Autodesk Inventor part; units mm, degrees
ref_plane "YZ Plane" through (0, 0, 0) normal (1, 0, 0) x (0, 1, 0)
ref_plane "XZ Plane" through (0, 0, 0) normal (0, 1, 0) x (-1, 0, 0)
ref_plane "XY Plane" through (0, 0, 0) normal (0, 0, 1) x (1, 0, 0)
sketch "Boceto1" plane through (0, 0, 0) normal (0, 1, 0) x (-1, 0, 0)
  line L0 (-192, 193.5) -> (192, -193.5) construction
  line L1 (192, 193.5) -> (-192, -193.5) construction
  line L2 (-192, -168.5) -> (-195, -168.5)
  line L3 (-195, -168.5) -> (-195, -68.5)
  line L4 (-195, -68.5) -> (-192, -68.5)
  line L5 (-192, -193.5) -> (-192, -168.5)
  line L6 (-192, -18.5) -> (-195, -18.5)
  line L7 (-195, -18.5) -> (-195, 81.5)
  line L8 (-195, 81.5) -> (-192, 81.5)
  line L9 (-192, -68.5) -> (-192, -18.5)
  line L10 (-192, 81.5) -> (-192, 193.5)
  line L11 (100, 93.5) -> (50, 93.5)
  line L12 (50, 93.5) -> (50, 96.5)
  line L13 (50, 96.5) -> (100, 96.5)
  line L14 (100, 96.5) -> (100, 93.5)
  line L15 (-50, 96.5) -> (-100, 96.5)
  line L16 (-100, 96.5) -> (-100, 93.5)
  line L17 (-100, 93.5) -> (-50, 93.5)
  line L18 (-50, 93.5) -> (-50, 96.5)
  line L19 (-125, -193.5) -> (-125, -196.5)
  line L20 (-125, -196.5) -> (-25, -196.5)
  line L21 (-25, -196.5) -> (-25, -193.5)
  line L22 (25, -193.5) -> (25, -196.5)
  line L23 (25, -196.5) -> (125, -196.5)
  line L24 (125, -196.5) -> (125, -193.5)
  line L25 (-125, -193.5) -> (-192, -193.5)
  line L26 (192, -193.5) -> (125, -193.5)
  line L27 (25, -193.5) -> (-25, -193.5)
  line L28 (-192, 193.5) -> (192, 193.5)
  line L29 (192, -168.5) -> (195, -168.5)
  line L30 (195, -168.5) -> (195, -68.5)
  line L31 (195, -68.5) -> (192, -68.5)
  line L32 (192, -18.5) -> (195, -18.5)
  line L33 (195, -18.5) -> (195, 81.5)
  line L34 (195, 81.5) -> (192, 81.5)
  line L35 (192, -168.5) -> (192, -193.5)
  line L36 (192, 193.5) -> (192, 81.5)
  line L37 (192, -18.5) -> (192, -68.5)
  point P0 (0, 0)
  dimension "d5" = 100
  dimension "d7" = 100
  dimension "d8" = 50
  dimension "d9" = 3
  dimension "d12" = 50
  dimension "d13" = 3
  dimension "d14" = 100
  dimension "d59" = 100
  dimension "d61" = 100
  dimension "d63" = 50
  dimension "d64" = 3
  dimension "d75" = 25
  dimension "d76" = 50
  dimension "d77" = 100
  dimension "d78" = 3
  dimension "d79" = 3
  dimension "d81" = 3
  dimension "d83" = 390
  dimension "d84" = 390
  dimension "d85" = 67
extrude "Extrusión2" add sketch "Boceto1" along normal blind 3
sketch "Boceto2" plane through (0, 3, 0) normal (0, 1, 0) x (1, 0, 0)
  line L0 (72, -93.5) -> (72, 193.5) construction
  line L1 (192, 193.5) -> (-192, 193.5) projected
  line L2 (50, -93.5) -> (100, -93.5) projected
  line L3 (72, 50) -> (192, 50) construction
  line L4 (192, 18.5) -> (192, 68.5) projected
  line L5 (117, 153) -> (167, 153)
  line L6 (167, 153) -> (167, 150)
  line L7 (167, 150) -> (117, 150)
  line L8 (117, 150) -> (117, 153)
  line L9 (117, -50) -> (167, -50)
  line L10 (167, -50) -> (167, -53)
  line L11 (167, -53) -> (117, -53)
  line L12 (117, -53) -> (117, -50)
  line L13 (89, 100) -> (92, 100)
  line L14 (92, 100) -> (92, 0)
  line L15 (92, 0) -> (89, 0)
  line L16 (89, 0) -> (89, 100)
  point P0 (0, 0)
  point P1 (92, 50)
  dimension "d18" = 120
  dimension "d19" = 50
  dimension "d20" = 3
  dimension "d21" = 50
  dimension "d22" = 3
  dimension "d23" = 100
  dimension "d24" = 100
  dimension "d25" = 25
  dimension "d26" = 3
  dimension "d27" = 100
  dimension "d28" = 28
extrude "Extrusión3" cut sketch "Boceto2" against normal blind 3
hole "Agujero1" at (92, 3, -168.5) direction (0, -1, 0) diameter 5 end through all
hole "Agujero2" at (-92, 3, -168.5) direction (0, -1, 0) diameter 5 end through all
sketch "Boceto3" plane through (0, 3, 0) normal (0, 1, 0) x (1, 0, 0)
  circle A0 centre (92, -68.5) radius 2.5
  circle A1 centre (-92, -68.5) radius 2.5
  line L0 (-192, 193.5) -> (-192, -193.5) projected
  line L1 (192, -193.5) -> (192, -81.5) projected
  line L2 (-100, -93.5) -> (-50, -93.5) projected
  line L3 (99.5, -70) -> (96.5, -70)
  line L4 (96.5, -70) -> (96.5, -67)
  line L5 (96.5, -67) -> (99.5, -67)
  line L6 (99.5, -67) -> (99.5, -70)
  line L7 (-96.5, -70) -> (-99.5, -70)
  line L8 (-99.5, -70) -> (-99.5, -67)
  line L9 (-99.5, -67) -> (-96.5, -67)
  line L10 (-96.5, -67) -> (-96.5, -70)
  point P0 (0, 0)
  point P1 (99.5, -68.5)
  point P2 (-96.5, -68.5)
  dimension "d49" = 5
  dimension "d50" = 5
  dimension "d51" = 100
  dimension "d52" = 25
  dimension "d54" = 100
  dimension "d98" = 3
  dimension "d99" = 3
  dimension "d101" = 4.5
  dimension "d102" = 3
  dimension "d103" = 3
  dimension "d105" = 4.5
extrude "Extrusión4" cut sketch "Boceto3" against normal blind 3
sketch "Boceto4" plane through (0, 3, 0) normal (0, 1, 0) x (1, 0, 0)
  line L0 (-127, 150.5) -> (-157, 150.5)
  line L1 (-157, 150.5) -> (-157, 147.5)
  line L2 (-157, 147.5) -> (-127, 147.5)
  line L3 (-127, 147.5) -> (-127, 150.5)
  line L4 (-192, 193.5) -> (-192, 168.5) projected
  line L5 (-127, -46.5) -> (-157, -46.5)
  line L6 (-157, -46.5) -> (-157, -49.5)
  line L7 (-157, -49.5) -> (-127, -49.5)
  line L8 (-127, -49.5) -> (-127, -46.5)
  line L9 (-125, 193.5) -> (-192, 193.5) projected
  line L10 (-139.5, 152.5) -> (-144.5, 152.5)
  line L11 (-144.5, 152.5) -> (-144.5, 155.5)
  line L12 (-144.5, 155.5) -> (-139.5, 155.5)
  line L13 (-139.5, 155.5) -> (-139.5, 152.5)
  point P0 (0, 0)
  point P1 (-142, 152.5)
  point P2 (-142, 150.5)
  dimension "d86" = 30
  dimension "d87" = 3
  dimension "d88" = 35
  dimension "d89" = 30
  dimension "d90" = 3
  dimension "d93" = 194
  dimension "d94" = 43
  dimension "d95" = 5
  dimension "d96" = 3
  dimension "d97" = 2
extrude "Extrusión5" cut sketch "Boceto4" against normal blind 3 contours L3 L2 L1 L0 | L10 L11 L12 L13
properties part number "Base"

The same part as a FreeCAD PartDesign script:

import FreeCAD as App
import Part
import Sketcher
Q = App.Units.Quantity

doc = App.newDocument("Part")
body = doc.addObject("PartDesign::Body", "Body")

sketch1 = body.newObject("Sketcher::SketchObject", "Sketch")
sketch1.AttachmentSupport = (doc.getObject("XZ_Plane"), [""])
sketch1.MapMode = "FlatFace"
sketch1.addGeometry([
    Part.LineSegment(App.Vector(195, -168.5, 0), App.Vector(192, -168.5, 0)),
    Part.LineSegment(App.Vector(192, -168.5, 0), App.Vector(192, -193.5, 0)),
    Part.LineSegment(App.Vector(192, -193.5, 0), App.Vector(125, -193.5, 0)),
    Part.LineSegment(App.Vector(125, -193.5, 0), App.Vector(125, -196.5, 0)),
    Part.LineSegment(App.Vector(125, -196.5, 0), App.Vector(25, -196.5, 0)),
    Part.LineSegment(App.Vector(25, -196.5, 0), App.Vector(25, -193.5, 0)),
    Part.LineSegment(App.Vector(25, -193.5, 0), App.Vector(-25, -193.5, 0)),
    Part.LineSegment(App.Vector(-25, -193.5, 0), App.Vector(-25, -196.5, 0)),
    Part.LineSegment(App.Vector(-25, -196.5, 0), App.Vector(-125, -196.5, 0)),
    Part.LineSegment(App.Vector(-125, -196.5, 0), App.Vector(-125, -193.5, 0)),
    Part.LineSegment(App.Vector(-125, -193.5, 0), App.Vector(-192, -193.5, 0)),
    Part.LineSegment(App.Vector(-192, -193.5, 0), App.Vector(-192, -168.5, 0)),
    Part.LineSegment(App.Vector(-192, -168.5, 0), App.Vector(-195, -168.5, 0)),
    Part.LineSegment(App.Vector(-195, -168.5, 0), App.Vector(-195, -68.5, 0)),
    Part.LineSegment(App.Vector(-195, -68.5, 0), App.Vector(-192, -68.5, 0)),
    Part.LineSegment(App.Vector(-192, -68.5, 0), App.Vector(-192, -18.5, 0)),
    Part.LineSegment(App.Vector(-192, -18.5, 0), App.Vector(-195, -18.5, 0)),
    Part.LineSegment(App.Vector(-195, -18.5, 0), App.Vector(-195, 81.5, 0)),
    Part.LineSegment(App.Vector(-195, 81.5, 0), App.Vector(-192, 81.5, 0)),
    Part.LineSegment(App.Vector(-192, 81.5, 0), App.Vector(-192, 193.5, 0)),
    Part.LineSegment(App.Vector(-192, 193.5, 0), App.Vector(192, 193.5, 0)),
    Part.LineSegment(App.Vector(192, 193.5, 0), App.Vector(192, 81.5, 0)),
    Part.LineSegment(App.Vector(192, 81.5, 0), App.Vector(195, 81.5, 0)),
    Part.LineSegment(App.Vector(195, 81.5, 0), App.Vector(195, -18.5, 0)),
    Part.LineSegment(App.Vector(195, -18.5, 0), App.Vector(192, -18.5, 0)),
    Part.LineSegment(App.Vector(192, -18.5, 0), App.Vector(192, -68.5, 0)),
    Part.LineSegment(App.Vector(192, -68.5, 0), App.Vector(195, -68.5, 0)),
    Part.LineSegment(App.Vector(195, -68.5, 0), App.Vector(195, -168.5, 0)),
    Part.LineSegment(App.Vector(100, 96.5, 0), App.Vector(50, 96.5, 0)),
    Part.LineSegment(App.Vector(50, 96.5, 0), App.Vector(50, 93.5, 0)),
    Part.LineSegment(App.Vector(50, 93.5, 0), App.Vector(100, 93.5, 0)),
    Part.LineSegment(App.Vector(100, 93.5, 0), App.Vector(100, 96.5, 0)),
    Part.LineSegment(App.Vector(-100, 96.5, 0), App.Vector(-100, 93.5, 0)),
    Part.LineSegment(App.Vector(-100, 93.5, 0), App.Vector(-50, 93.5, 0)),
    Part.LineSegment(App.Vector(-50, 93.5, 0), App.Vector(-50, 96.5, 0)),
    Part.LineSegment(App.Vector(-50, 96.5, 0), App.Vector(-100, 96.5, 0)),
], False)
sketch1.addConstraint([
    Sketcher.Constraint("Coincident", 0, 2, 1, 1),
    Sketcher.Constraint("Coincident", 1, 2, 2, 1),
    Sketcher.Constraint("Coincident", 2, 2, 3, 1),
    Sketcher.Constraint("Coincident", 3, 2, 4, 1),
    Sketcher.Constraint("Coincident", 4, 2, 5, 1),
    Sketcher.Constraint("Coincident", 5, 2, 6, 1),
    Sketcher.Constraint("Coincident", 6, 2, 7, 1),
    Sketcher.Constraint("Coincident", 7, 2, 8, 1),
    Sketcher.Constraint("Coincident", 8, 2, 9, 1),
    Sketcher.Constraint("Coincident", 9, 2, 10, 1),
    Sketcher.Constraint("Coincident", 10, 2, 11, 1),
    Sketcher.Constraint("Coincident", 11, 2, 12, 1),
    Sketcher.Constraint("Coincident", 12, 2, 13, 1),
    Sketcher.Constraint("Coincident", 13, 2, 14, 1),
    Sketcher.Constraint("Coincident", 14, 2, 15, 1),
    Sketcher.Constraint("Coincident", 15, 2, 16, 1),
    Sketcher.Constraint("Coincident", 16, 2, 17, 1),
    Sketcher.Constraint("Coincident", 17, 2, 18, 1),
    Sketcher.Constraint("Coincident", 18, 2, 19, 1),
    Sketcher.Constraint("Coincident", 19, 2, 20, 1),
    Sketcher.Constraint("Coincident", 20, 2, 21, 1),
    Sketcher.Constraint("Coincident", 21, 2, 22, 1),
    Sketcher.Constraint("Coincident", 22, 2, 23, 1),
    Sketcher.Constraint("Coincident", 23, 2, 24, 1),
    Sketcher.Constraint("Coincident", 24, 2, 25, 1),
    Sketcher.Constraint("Coincident", 25, 2, 26, 1),
    Sketcher.Constraint("Coincident", 26, 2, 27, 1),
    Sketcher.Constraint("Coincident", 27, 2, 0, 1),
    Sketcher.Constraint("Coincident", 28, 2, 29, 1),
    Sketcher.Constraint("Coincident", 29, 2, 30, 1),
    Sketcher.Constraint("Coincident", 30, 2, 31, 1),
    Sketcher.Constraint("Coincident", 31, 2, 28, 1),
    Sketcher.Constraint("Coincident", 32, 2, 33, 1),
    Sketcher.Constraint("Coincident", 33, 2, 34, 1),
    Sketcher.Constraint("Coincident", 34, 2, 35, 1),
    Sketcher.Constraint("Coincident", 35, 2, 32, 1),
    Sketcher.Constraint("Horizontal", 0),
    Sketcher.Constraint("Vertical", 1),
    Sketcher.Constraint("Horizontal", 2),
    Sketcher.Constraint("Vertical", 3),
    Sketcher.Constraint("Horizontal", 4),
    Sketcher.Constraint("Vertical", 5),
    Sketcher.Constraint("Horizontal", 6),
    Sketcher.Constraint("Vertical", 7),
    Sketcher.Constraint("Horizontal", 8),
    Sketcher.Constraint("Vertical", 9),
    Sketcher.Constraint("Horizontal", 10),
    Sketcher.Constraint("Vertical", 11),
    Sketcher.Constraint("Horizontal", 12),
    Sketcher.Constraint("Vertical", 13),
    Sketcher.Constraint("Horizontal", 14),
    Sketcher.Constraint("Vertical", 15),
    Sketcher.Constraint("Horizontal", 16),
    Sketcher.Constraint("Vertical", 17),
    Sketcher.Constraint("Horizontal", 18),
    Sketcher.Constraint("Vertical", 19),
    Sketcher.Constraint("Horizontal", 20),
    Sketcher.Constraint("Vertical", 21),
    Sketcher.Constraint("Horizontal", 22),
    Sketcher.Constraint("Vertical", 23),
    Sketcher.Constraint("Horizontal", 24),
    Sketcher.Constraint("Vertical", 25),
    Sketcher.Constraint("Horizontal", 26),
    Sketcher.Constraint("Vertical", 27),
    Sketcher.Constraint("Horizontal", 28),
    Sketcher.Constraint("Vertical", 29),
    Sketcher.Constraint("Horizontal", 30),
    Sketcher.Constraint("Vertical", 31),
    Sketcher.Constraint("Vertical", 32),
    Sketcher.Constraint("Horizontal", 33),
    Sketcher.Constraint("Vertical", 34),
    Sketcher.Constraint("Horizontal", 35),
    Sketcher.Constraint("Symmetric", 1, 2, 19, 2, -1, 1),
    Sketcher.Constraint("Symmetric", 10, 2, 20, 2, -1, 1),
    Sketcher.Constraint("Symmetric", 4, 2, 7, 2, -2),
    Sketcher.Constraint("Symmetric", 0, 2, 11, 2, -2),
    Sketcher.Constraint("Symmetric", 17, 2, 22, 2, -2),
    Sketcher.Constraint("Symmetric", 15, 2, 24, 2, -2),
    Sketcher.Constraint("Symmetric", 13, 2, 26, 2, -2),
    Sketcher.Constraint("Symmetric", 30, 2, 32, 2, -2),
    Sketcher.Constraint("Symmetric", 28, 2, 34, 2, -2),
    Sketcher.Constraint("Horizontal", 2, 2, 5, 2),
    Sketcher.Constraint("Vertical", 11, 2, 14, 2),
    Sketcher.Constraint("Vertical", 13, 2, 16, 2),
    Sketcher.Constraint("Equal", 4, 8),
    Sketcher.Constraint("Equal", 6, 28),
    Sketcher.Constraint("Equal", 26, 3),
    Sketcher.Constraint("Equal", 8, 13),
    Sketcher.Constraint("Equal", 35, 15),
    Sketcher.Constraint("Equal", 13, 17),
    Sketcher.Constraint("Equal", 9, 29),
    Sketcher.Constraint("DistanceX", 0, 2, 0, 1, Q("3 mm")),
    Sketcher.Constraint("DistanceX", 2, 2, 2, 1, Q("67 mm")),
    Sketcher.Constraint("DistanceX", 4, 2, 4, 1, Q("100 mm")),
    Sketcher.Constraint("DistanceX", 6, 2, 6, 1, Q("50 mm")),
    Sketcher.Constraint("DistanceY", 1, 2, 1, 1, Q("25 mm")),
    Sketcher.Constraint("DistanceX", -1, 1, 28, 2, Q("50 mm")),
    Sketcher.Constraint("DistanceY", 3, 2, 20, 2, Q("390 mm")),
    Sketcher.Constraint("DistanceY", 29, 2, 20, 2, Q("100 mm")),
])
pad1 = body.newObject("PartDesign::Pad", "Pad")
pad1.Profile = sketch1
pad1.Length = 3
pad1.Reversed = True

sketch2 = body.newObject("Sketcher::SketchObject", "Sketch001")
sketch2.AttachmentSupport = (doc.getObject("XZ_Plane"), [""])
sketch2.MapMode = "FlatFace"
sketch2.AttachmentOffset = App.Placement(App.Vector(0, 0, -3), App.Rotation())
sketch2.addGeometry([
    Part.LineSegment(App.Vector(167, -153, 0), App.Vector(117, -153, 0)),
    Part.LineSegment(App.Vector(117, -153, 0), App.Vector(117, -150, 0)),
    Part.LineSegment(App.Vector(117, -150, 0), App.Vector(167, -150, 0)),
    Part.LineSegment(App.Vector(167, -150, 0), App.Vector(167, -153, 0)),
    Part.LineSegment(App.Vector(167, 50, 0), App.Vector(117, 50, 0)),
    Part.LineSegment(App.Vector(117, 50, 0), App.Vector(117, 53, 0)),
    Part.LineSegment(App.Vector(117, 53, 0), App.Vector(167, 53, 0)),
    Part.LineSegment(App.Vector(167, 53, 0), App.Vector(167, 50, 0)),
    Part.LineSegment(App.Vector(92, -100, 0), App.Vector(89, -100, 0)),
    Part.LineSegment(App.Vector(89, -100, 0), App.Vector(89, 0, 0)),
    Part.LineSegment(App.Vector(89, 0, 0), App.Vector(92, 0, 0)),
    Part.LineSegment(App.Vector(92, 0, 0), App.Vector(92, -100, 0)),
], False)
sketch2.addConstraint([
    Sketcher.Constraint("Coincident", 0, 2, 1, 1),
    Sketcher.Constraint("Coincident", 1, 2, 2, 1),
    Sketcher.Constraint("Coincident", 2, 2, 3, 1),
    Sketcher.Constraint("Coincident", 3, 2, 0, 1),
    Sketcher.Constraint("Coincident", 4, 2, 5, 1),
    Sketcher.Constraint("Coincident", 5, 2, 6, 1),
    Sketcher.Constraint("Coincident", 6, 2, 7, 1),
    Sketcher.Constraint("Coincident", 7, 2, 4, 1),
    Sketcher.Constraint("Coincident", 8, 2, 9, 1),
    Sketcher.Constraint("Coincident", 9, 2, 10, 1),
    Sketcher.Constraint("Coincident", 10, 2, 11, 1),
    Sketcher.Constraint("Coincident", 11, 2, 8, 1),
    Sketcher.Constraint("Horizontal", 0),
    Sketcher.Constraint("Vertical", 1),
    Sketcher.Constraint("Horizontal", 2),
    Sketcher.Constraint("Vertical", 3),
    Sketcher.Constraint("Horizontal", 4),
    Sketcher.Constraint("Vertical", 5),
    Sketcher.Constraint("Horizontal", 6),
    Sketcher.Constraint("Vertical", 7),
    Sketcher.Constraint("Horizontal", 8),
    Sketcher.Constraint("Vertical", 9),
    Sketcher.Constraint("Horizontal", 10),
    Sketcher.Constraint("Vertical", 11),
    Sketcher.Constraint("PointOnObject", 9, 2, -1),
    Sketcher.Constraint("Vertical", 1, 2, 4, 2),
    Sketcher.Constraint("Vertical", 3, 2, 6, 2),
    Sketcher.Constraint("Equal", 10, 1),
    Sketcher.Constraint("Equal", 3, 5),
    Sketcher.Constraint("DistanceX", 0, 2, 0, 1, Q("50 mm")),
    Sketcher.Constraint("DistanceX", 8, 2, 8, 1, Q("3 mm")),
    Sketcher.Constraint("DistanceY", 9, 1, 9, 2, Q("100 mm")),
    Sketcher.Constraint("DistanceY", -1, 1, 4, 2, Q("50 mm")),
    Sketcher.Constraint("DistanceX", 8, 2, 1, 2, Q("28 mm")),
    Sketcher.Constraint("DistanceY", 1, 2, 8, 2, Q("50 mm")),
    Sketcher.Constraint("DistanceX", -1, 1, 0, 2, Q("117 mm")),
])
pocket1 = body.newObject("PartDesign::Pocket", "Pocket")
pocket1.Profile = sketch2
pocket1.Length = 3
pocket1.Reversed = True

sketch3 = body.newObject("Sketcher::SketchObject", "Sketch002")
sketch3.AttachmentSupport = (doc.getObject("XZ_Plane"), [""])
sketch3.MapMode = "FlatFace"
sketch3.AttachmentOffset = App.Placement(App.Vector(0, 0, -3), App.Rotation())
sketch3.addGeometry(Part.Circle(App.Vector(92, -168.5, 0), App.Vector(0, 0, 1), 2.5), False)
sketch3.addConstraint([
    Sketcher.Constraint("Diameter", 0, Q("5 mm")),
    Sketcher.Constraint("DistanceX", -1, 1, 0, 3, Q("92 mm")),
    Sketcher.Constraint("DistanceY", 0, 3, -1, 1, Q("168.5 mm")),
])
doc.recompute()
hole = body.newObject("PartDesign::Hole", "Hole")
hole.Profile = sketch3
hole.ThreadType = "None"
hole.Diameter = 5
hole.DepthType = "ThroughAll"
hole.Reversed = True

sketch4 = body.newObject("Sketcher::SketchObject", "Sketch003")
sketch4.AttachmentSupport = (doc.getObject("XZ_Plane"), [""])
sketch4.MapMode = "FlatFace"
sketch4.AttachmentOffset = App.Placement(App.Vector(0, 0, -3), App.Rotation())
sketch4.addGeometry(Part.Circle(App.Vector(-92, -168.5, 0), App.Vector(0, 0, 1), 2.5), False)
sketch4.addConstraint([
    Sketcher.Constraint("Diameter", 0, Q("5 mm")),
    Sketcher.Constraint("DistanceX", 0, 3, -1, 1, Q("92 mm")),
    Sketcher.Constraint("DistanceY", 0, 3, -1, 1, Q("168.5 mm")),
])
doc.recompute()
hole2 = body.newObject("PartDesign::Hole", "Hole001")
hole2.Profile = sketch4
hole2.ThreadType = "None"
hole2.Diameter = 5
hole2.DepthType = "ThroughAll"
hole2.Reversed = True

sketch5 = body.newObject("Sketcher::SketchObject", "Sketch004")
sketch5.AttachmentSupport = (doc.getObject("XZ_Plane"), [""])
sketch5.MapMode = "FlatFace"
sketch5.AttachmentOffset = App.Placement(App.Vector(0, 0, -3), App.Rotation())
sketch5.addGeometry([
    Part.Circle(App.Vector(92, 68.5, 0), App.Vector(0, 0, 1), 2.5),
    Part.Circle(App.Vector(-92, 68.5, 0), App.Vector(0, 0, 1), 2.5),
    Part.LineSegment(App.Vector(96.5, 70, 0), App.Vector(99.5, 70, 0)),
    Part.LineSegment(App.Vector(99.5, 70, 0), App.Vector(99.5, 67, 0)),
    Part.LineSegment(App.Vector(99.5, 67, 0), App.Vector(96.5, 67, 0)),
    Part.LineSegment(App.Vector(96.5, 67, 0), App.Vector(96.5, 70, 0)),
    Part.LineSegment(App.Vector(-99.5, 70, 0), App.Vector(-96.5, 70, 0)),
    Part.LineSegment(App.Vector(-96.5, 70, 0), App.Vector(-96.5, 67, 0)),
    Part.LineSegment(App.Vector(-96.5, 67, 0), App.Vector(-99.5, 67, 0)),
    Part.LineSegment(App.Vector(-99.5, 67, 0), App.Vector(-99.5, 70, 0)),
], False)
sketch5.addConstraint([
    Sketcher.Constraint("Coincident", 2, 2, 3, 1),
    Sketcher.Constraint("Coincident", 3, 2, 4, 1),
    Sketcher.Constraint("Coincident", 4, 2, 5, 1),
    Sketcher.Constraint("Coincident", 5, 2, 2, 1),
    Sketcher.Constraint("Coincident", 6, 2, 7, 1),
    Sketcher.Constraint("Coincident", 7, 2, 8, 1),
    Sketcher.Constraint("Coincident", 8, 2, 9, 1),
    Sketcher.Constraint("Coincident", 9, 2, 6, 1),
    Sketcher.Constraint("Horizontal", 2),
    Sketcher.Constraint("Vertical", 3),
    Sketcher.Constraint("Horizontal", 4),
    Sketcher.Constraint("Vertical", 5),
    Sketcher.Constraint("Horizontal", 6),
    Sketcher.Constraint("Vertical", 7),
    Sketcher.Constraint("Horizontal", 8),
    Sketcher.Constraint("Vertical", 9),
    Sketcher.Constraint("Equal", 0, 1),
    Sketcher.Constraint("Symmetric", 0, 3, 1, 3, -2),
    Sketcher.Constraint("Symmetric", 5, 2, 6, 2, -2),
    Sketcher.Constraint("Symmetric", 3, 2, 8, 2, -2),
    Sketcher.Constraint("Equal", 8, 3),
    Sketcher.Constraint("Diameter", 0, Q("5 mm")),
    Sketcher.Constraint("DistanceX", 2, 1, 2, 2, Q("3 mm")),
    Sketcher.Constraint("DistanceX", 0, 3, 4, 2, Q("4.5 mm")),
    Sketcher.Constraint("DistanceX", -1, 1, 0, 3, Q("92 mm")),
    Sketcher.Constraint("DistanceY", -1, 1, 2, 2, Q("70 mm")),
    Sketcher.Constraint("DistanceY", -1, 1, 0, 3, Q("68.5 mm")),
])
pocket2 = body.newObject("PartDesign::Pocket", "Pocket001")
pocket2.Profile = sketch5
pocket2.Length = 3
pocket2.Reversed = True

sketch6 = body.newObject("Sketcher::SketchObject", "Sketch005")
sketch6.AttachmentSupport = (doc.getObject("XZ_Plane"), [""])
sketch6.MapMode = "FlatFace"
sketch6.AttachmentOffset = App.Placement(App.Vector(0, 0, -3), App.Rotation())
sketch6.addGeometry([
    Part.LineSegment(App.Vector(-127, -147.5, 0), App.Vector(-127, -150.5, 0)),
    Part.LineSegment(App.Vector(-127, -150.5, 0), App.Vector(-157, -150.5, 0)),
    Part.LineSegment(App.Vector(-157, -150.5, 0), App.Vector(-157, -147.5, 0)),
    Part.LineSegment(App.Vector(-157, -147.5, 0), App.Vector(-127, -147.5, 0)),
    Part.LineSegment(App.Vector(-144.5, -152.5, 0), App.Vector(-139.5, -152.5, 0)),
    Part.LineSegment(App.Vector(-139.5, -152.5, 0), App.Vector(-139.5, -155.5, 0)),
    Part.LineSegment(App.Vector(-139.5, -155.5, 0), App.Vector(-144.5, -155.5, 0)),
    Part.LineSegment(App.Vector(-144.5, -155.5, 0), App.Vector(-144.5, -152.5, 0)),
], False)
sketch6.addConstraint([
    Sketcher.Constraint("Coincident", 0, 2, 1, 1),
    Sketcher.Constraint("Coincident", 1, 2, 2, 1),
    Sketcher.Constraint("Coincident", 2, 2, 3, 1),
    Sketcher.Constraint("Coincident", 3, 2, 0, 1),
    Sketcher.Constraint("Coincident", 4, 2, 5, 1),
    Sketcher.Constraint("Coincident", 5, 2, 6, 1),
    Sketcher.Constraint("Coincident", 6, 2, 7, 1),
    Sketcher.Constraint("Coincident", 7, 2, 4, 1),
    Sketcher.Constraint("Vertical", 0),
    Sketcher.Constraint("Horizontal", 1),
    Sketcher.Constraint("Vertical", 2),
    Sketcher.Constraint("Horizontal", 3),
    Sketcher.Constraint("Horizontal", 4),
    Sketcher.Constraint("Vertical", 5),
    Sketcher.Constraint("Horizontal", 6),
    Sketcher.Constraint("Vertical", 7),
    Sketcher.Constraint("Equal", 2, 5),
    Sketcher.Constraint("DistanceX", 1, 2, 1, 1, Q("30 mm")),
    Sketcher.Constraint("DistanceX", 4, 1, 4, 2, Q("5 mm")),
    Sketcher.Constraint("DistanceY", 0, 2, 0, 1, Q("3 mm")),
    Sketcher.Constraint("DistanceY", 4, 2, 0, 2, Q("2 mm")),
    Sketcher.Constraint("DistanceX", 0, 2, -1, 1, Q("127 mm")),
    Sketcher.Constraint("DistanceY", 0, 2, -1, 1, Q("150.5 mm")),
    Sketcher.Constraint("DistanceX", 4, 2, -1, 1, Q("139.5 mm")),
])
pocket3 = body.newObject("PartDesign::Pocket", "Pocket002")
pocket3.Profile = sketch6
pocket3.Length = 3
pocket3.Reversed = True

doc.recompute()
